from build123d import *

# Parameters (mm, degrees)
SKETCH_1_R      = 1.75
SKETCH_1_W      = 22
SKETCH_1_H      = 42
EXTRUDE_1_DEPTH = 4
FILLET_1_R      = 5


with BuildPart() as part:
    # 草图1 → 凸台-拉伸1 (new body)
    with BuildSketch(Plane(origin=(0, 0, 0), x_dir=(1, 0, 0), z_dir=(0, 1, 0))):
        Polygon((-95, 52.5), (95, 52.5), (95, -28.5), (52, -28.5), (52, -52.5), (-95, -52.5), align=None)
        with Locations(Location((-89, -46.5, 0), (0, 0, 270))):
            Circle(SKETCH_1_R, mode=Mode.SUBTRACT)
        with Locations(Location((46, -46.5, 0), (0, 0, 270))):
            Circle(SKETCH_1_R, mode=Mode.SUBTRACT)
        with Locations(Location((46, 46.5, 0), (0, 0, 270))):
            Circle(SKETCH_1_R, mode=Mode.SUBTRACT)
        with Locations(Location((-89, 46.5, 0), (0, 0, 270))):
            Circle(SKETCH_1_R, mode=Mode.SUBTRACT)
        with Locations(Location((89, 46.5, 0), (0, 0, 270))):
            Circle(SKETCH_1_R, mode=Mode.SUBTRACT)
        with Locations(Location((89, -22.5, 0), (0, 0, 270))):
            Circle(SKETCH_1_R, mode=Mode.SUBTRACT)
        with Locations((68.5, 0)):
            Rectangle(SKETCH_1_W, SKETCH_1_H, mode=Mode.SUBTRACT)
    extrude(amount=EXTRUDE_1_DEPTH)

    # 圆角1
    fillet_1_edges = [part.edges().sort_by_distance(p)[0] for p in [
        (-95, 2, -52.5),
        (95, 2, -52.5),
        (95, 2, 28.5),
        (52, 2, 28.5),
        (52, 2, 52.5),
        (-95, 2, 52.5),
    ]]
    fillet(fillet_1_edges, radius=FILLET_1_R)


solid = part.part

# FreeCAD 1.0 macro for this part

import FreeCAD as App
import Part
import Sketcher

V = App.Vector


def edges_at(feature, points):
    """Names of the edges that pass closest to the given points."""
    edges = feature.Shape.Edges
    near = lambda p: min(range(len(edges)), key=lambda i: edges[i].distToShape(Part.Vertex(*p))[0])
    return sorted({f"Edge{near(p) + 1}" for p in points})


def add_polygon(sketch, points):
    """Adds a closed chain of lines whose ends are joined by coincident constraints."""
    first, n = sketch.GeometryCount, len(points)
    for a, b in zip(points, points[1:] + points[:1]):
        sketch.addGeometry(Part.LineSegment(App.Vector(*a, 0), App.Vector(*b, 0)), False)
    for i in range(n):
        sketch.addConstraint(Sketcher.Constraint("Coincident", first + i, 2, first + (i + 1) % n, 1))

doc = App.newDocument("Part")
body = doc.addObject("PartDesign::Body", "Body")

# Sketch on XZ plane
sketch1 = body.newObject("Sketcher::SketchObject", "Sketch")
sketch1.AttachmentSupport = (doc.getObject("XZ_Plane"), [""])
sketch1.MapMode = "FlatFace"
add_polygon(sketch1, [(95, -52.5), (-95, -52.5), (-95, 52.5), (52, 52.5), (52, 28.5), (95, 28.5)])  # lines 0-5
sketch1.addGeometry(Part.Circle(V(46, 46.5, 0), V(0, 0, 1), 1.75), False)  # 6
sketch1.addGeometry(Part.Circle(V(89, 22.5, 0), V(0, 0, 1), 1.75), False)  # 7
sketch1.addGeometry(Part.Circle(V(-89, 46.5, 0), V(0, 0, 1), 1.75), False)  # 8
add_polygon(sketch1, [(57.5, 21), (57.5, -21), (79.5, -21), (79.5, 21)])  # lines 9-12
sketch1.addGeometry(Part.Circle(V(89, -46.5, 0), V(0, 0, 1), 1.75), False)  # 13
sketch1.addGeometry(Part.Circle(V(46, -46.5, 0), V(0, 0, 1), 1.75), False)  # 14
sketch1.addGeometry(Part.Circle(V(-89, -46.5, 0), V(0, 0, 1), 1.75), False)  # 15
sketch1.addConstraint(Sketcher.Constraint("Horizontal", 0))
sketch1.addConstraint(Sketcher.Constraint("Vertical", 1))
sketch1.addConstraint(Sketcher.Constraint("Horizontal", 2))
sketch1.addConstraint(Sketcher.Constraint("Vertical", 3))
sketch1.addConstraint(Sketcher.Constraint("Horizontal", 4))
sketch1.addConstraint(Sketcher.Constraint("Vertical", 5))
sketch1.addConstraint(Sketcher.Constraint("Vertical", 9))
sketch1.addConstraint(Sketcher.Constraint("Horizontal", 10))
sketch1.addConstraint(Sketcher.Constraint("Vertical", 11))
sketch1.addConstraint(Sketcher.Constraint("Horizontal", 12))
sketch1.addConstraint(Sketcher.Constraint("Equal", 6, 7))
sketch1.addConstraint(Sketcher.Constraint("Equal", 7, 8))
sketch1.addConstraint(Sketcher.Constraint("Equal", 8, 13))
sketch1.addConstraint(Sketcher.Constraint("Equal", 13, 14))
sketch1.addConstraint(Sketcher.Constraint("Equal", 14, 15))
sketch1.addConstraint(Sketcher.Constraint("Symmetric", 8, 3, 13, 3, -1, 1))
sketch1.addConstraint(Sketcher.Constraint("Symmetric", 1, 2, 5, 2, -1, 1))
sketch1.addConstraint(Sketcher.Constraint("Symmetric", 13, 3, 15, 3, -2))
sketch1.addConstraint(Sketcher.Constraint("Symmetric", 6, 3, 14, 3, -1))
sketch1.addConstraint(Sketcher.Constraint("Horizontal", 6, 3, 8, 3))
sketch1.addConstraint(Sketcher.Constraint("Vertical", 7, 3, 13, 3))
sketch1.addConstraint(Sketcher.Constraint("Diameter", 6, 3.5))
sketch1.addConstraint(Sketcher.Constraint("DistanceX", 0, 2, 0, 1, 190.0))
sketch1.addConstraint(Sketcher.Constraint("DistanceX", 2, 1, 2, 2, 147.0))
sketch1.addConstraint(Sketcher.Constraint("DistanceX", 10, 1, 10, 2, 22.0))
sketch1.addConstraint(Sketcher.Constraint("DistanceY", 1, 1, 1, 2, 105.0))
sketch1.addConstraint(Sketcher.Constraint("DistanceY", 3, 2, 3, 1, 24.0))
sketch1.addConstraint(Sketcher.Constraint("DistanceY", 9, 2, 9, 1, 42.0))
sketch1.addConstraint(Sketcher.Constraint("DistanceX", -1, 1, 6, 3, 46.0))
sketch1.addConstraint(Sketcher.Constraint("DistanceX", -1, 1, 7, 3, 89.0))
sketch1.addConstraint(Sketcher.Constraint("DistanceY", 9, 2, -1, 1, 21.0))
sketch1.addConstraint(Sketcher.Constraint("DistanceY", 7, 3, 6, 3, 24.0))
sketch1.addConstraint(Sketcher.Constraint("DistanceY", 13, 3, 7, 3, 69.0))
sketch1.addConstraint(Sketcher.Constraint("DistanceX", -1, 1, 9, 2, 57.5))
pad1 = body.newObject("PartDesign::Pad", "Pad")
pad1.Profile = sketch1
pad1.Length = 4
pad1.Reversed = True
doc.recompute()

fillet = body.newObject("PartDesign::Fillet", "Fillet")
fillet.Base = (pad1, edges_at(pad1, [
    (-95, 2, -52.5),
    (95, 2, -52.5),
    (95, 2, 28.5),
    (52, 2, 28.5),
    (52, 2, 52.5),
    (-95, 2, 52.5),
]))
fillet.Radius = 5

doc.recompute()
